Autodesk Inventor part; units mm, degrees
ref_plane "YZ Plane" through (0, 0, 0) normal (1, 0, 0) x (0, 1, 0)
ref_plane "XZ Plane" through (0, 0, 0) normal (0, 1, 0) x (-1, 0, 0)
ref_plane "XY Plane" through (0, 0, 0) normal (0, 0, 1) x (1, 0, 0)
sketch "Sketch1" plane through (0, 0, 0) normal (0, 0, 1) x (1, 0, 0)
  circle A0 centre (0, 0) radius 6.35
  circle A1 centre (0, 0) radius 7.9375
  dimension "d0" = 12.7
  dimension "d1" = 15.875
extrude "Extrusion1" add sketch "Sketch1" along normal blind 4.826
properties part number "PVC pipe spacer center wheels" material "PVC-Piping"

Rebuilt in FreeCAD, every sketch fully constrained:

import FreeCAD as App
import Part
import Sketcher

V = App.Vector
Q = App.Units.Quantity

doc = App.newDocument("Part")
body = doc.addObject("PartDesign::Body", "Body")

sketch1 = doc.addObject("Sketcher::SketchObject", "Sketch")
body.addObject(sketch1)
sketch1.AttachmentSupport = (doc.XY_Plane, [""])
sketch1.MapMode = "FlatFace"
sketch1.addGeometry([
    Part.Circle(V(0, 0, 0), V(0, 0, 1), 8),
    Part.Circle(V(0, 0, 0), V(0, 0, 1), 6),
], False)
sketch1.addConstraint([
    Sketcher.Constraint("Coincident", 0, 3, -1, 1),
    Sketcher.Constraint("Coincident", 1, 3, -1, 1),
    Sketcher.Constraint("Diameter", 1, Q("0.5 in")),
    Sketcher.Constraint("Diameter", 0, Q("0.625 in")),
])
pad1 = doc.addObject("PartDesign::Pad", "Pad")
body.addObject(pad1)
pad1.Profile = sketch1
pad1.Length = Q("0.19 in")

doc.recompute()
